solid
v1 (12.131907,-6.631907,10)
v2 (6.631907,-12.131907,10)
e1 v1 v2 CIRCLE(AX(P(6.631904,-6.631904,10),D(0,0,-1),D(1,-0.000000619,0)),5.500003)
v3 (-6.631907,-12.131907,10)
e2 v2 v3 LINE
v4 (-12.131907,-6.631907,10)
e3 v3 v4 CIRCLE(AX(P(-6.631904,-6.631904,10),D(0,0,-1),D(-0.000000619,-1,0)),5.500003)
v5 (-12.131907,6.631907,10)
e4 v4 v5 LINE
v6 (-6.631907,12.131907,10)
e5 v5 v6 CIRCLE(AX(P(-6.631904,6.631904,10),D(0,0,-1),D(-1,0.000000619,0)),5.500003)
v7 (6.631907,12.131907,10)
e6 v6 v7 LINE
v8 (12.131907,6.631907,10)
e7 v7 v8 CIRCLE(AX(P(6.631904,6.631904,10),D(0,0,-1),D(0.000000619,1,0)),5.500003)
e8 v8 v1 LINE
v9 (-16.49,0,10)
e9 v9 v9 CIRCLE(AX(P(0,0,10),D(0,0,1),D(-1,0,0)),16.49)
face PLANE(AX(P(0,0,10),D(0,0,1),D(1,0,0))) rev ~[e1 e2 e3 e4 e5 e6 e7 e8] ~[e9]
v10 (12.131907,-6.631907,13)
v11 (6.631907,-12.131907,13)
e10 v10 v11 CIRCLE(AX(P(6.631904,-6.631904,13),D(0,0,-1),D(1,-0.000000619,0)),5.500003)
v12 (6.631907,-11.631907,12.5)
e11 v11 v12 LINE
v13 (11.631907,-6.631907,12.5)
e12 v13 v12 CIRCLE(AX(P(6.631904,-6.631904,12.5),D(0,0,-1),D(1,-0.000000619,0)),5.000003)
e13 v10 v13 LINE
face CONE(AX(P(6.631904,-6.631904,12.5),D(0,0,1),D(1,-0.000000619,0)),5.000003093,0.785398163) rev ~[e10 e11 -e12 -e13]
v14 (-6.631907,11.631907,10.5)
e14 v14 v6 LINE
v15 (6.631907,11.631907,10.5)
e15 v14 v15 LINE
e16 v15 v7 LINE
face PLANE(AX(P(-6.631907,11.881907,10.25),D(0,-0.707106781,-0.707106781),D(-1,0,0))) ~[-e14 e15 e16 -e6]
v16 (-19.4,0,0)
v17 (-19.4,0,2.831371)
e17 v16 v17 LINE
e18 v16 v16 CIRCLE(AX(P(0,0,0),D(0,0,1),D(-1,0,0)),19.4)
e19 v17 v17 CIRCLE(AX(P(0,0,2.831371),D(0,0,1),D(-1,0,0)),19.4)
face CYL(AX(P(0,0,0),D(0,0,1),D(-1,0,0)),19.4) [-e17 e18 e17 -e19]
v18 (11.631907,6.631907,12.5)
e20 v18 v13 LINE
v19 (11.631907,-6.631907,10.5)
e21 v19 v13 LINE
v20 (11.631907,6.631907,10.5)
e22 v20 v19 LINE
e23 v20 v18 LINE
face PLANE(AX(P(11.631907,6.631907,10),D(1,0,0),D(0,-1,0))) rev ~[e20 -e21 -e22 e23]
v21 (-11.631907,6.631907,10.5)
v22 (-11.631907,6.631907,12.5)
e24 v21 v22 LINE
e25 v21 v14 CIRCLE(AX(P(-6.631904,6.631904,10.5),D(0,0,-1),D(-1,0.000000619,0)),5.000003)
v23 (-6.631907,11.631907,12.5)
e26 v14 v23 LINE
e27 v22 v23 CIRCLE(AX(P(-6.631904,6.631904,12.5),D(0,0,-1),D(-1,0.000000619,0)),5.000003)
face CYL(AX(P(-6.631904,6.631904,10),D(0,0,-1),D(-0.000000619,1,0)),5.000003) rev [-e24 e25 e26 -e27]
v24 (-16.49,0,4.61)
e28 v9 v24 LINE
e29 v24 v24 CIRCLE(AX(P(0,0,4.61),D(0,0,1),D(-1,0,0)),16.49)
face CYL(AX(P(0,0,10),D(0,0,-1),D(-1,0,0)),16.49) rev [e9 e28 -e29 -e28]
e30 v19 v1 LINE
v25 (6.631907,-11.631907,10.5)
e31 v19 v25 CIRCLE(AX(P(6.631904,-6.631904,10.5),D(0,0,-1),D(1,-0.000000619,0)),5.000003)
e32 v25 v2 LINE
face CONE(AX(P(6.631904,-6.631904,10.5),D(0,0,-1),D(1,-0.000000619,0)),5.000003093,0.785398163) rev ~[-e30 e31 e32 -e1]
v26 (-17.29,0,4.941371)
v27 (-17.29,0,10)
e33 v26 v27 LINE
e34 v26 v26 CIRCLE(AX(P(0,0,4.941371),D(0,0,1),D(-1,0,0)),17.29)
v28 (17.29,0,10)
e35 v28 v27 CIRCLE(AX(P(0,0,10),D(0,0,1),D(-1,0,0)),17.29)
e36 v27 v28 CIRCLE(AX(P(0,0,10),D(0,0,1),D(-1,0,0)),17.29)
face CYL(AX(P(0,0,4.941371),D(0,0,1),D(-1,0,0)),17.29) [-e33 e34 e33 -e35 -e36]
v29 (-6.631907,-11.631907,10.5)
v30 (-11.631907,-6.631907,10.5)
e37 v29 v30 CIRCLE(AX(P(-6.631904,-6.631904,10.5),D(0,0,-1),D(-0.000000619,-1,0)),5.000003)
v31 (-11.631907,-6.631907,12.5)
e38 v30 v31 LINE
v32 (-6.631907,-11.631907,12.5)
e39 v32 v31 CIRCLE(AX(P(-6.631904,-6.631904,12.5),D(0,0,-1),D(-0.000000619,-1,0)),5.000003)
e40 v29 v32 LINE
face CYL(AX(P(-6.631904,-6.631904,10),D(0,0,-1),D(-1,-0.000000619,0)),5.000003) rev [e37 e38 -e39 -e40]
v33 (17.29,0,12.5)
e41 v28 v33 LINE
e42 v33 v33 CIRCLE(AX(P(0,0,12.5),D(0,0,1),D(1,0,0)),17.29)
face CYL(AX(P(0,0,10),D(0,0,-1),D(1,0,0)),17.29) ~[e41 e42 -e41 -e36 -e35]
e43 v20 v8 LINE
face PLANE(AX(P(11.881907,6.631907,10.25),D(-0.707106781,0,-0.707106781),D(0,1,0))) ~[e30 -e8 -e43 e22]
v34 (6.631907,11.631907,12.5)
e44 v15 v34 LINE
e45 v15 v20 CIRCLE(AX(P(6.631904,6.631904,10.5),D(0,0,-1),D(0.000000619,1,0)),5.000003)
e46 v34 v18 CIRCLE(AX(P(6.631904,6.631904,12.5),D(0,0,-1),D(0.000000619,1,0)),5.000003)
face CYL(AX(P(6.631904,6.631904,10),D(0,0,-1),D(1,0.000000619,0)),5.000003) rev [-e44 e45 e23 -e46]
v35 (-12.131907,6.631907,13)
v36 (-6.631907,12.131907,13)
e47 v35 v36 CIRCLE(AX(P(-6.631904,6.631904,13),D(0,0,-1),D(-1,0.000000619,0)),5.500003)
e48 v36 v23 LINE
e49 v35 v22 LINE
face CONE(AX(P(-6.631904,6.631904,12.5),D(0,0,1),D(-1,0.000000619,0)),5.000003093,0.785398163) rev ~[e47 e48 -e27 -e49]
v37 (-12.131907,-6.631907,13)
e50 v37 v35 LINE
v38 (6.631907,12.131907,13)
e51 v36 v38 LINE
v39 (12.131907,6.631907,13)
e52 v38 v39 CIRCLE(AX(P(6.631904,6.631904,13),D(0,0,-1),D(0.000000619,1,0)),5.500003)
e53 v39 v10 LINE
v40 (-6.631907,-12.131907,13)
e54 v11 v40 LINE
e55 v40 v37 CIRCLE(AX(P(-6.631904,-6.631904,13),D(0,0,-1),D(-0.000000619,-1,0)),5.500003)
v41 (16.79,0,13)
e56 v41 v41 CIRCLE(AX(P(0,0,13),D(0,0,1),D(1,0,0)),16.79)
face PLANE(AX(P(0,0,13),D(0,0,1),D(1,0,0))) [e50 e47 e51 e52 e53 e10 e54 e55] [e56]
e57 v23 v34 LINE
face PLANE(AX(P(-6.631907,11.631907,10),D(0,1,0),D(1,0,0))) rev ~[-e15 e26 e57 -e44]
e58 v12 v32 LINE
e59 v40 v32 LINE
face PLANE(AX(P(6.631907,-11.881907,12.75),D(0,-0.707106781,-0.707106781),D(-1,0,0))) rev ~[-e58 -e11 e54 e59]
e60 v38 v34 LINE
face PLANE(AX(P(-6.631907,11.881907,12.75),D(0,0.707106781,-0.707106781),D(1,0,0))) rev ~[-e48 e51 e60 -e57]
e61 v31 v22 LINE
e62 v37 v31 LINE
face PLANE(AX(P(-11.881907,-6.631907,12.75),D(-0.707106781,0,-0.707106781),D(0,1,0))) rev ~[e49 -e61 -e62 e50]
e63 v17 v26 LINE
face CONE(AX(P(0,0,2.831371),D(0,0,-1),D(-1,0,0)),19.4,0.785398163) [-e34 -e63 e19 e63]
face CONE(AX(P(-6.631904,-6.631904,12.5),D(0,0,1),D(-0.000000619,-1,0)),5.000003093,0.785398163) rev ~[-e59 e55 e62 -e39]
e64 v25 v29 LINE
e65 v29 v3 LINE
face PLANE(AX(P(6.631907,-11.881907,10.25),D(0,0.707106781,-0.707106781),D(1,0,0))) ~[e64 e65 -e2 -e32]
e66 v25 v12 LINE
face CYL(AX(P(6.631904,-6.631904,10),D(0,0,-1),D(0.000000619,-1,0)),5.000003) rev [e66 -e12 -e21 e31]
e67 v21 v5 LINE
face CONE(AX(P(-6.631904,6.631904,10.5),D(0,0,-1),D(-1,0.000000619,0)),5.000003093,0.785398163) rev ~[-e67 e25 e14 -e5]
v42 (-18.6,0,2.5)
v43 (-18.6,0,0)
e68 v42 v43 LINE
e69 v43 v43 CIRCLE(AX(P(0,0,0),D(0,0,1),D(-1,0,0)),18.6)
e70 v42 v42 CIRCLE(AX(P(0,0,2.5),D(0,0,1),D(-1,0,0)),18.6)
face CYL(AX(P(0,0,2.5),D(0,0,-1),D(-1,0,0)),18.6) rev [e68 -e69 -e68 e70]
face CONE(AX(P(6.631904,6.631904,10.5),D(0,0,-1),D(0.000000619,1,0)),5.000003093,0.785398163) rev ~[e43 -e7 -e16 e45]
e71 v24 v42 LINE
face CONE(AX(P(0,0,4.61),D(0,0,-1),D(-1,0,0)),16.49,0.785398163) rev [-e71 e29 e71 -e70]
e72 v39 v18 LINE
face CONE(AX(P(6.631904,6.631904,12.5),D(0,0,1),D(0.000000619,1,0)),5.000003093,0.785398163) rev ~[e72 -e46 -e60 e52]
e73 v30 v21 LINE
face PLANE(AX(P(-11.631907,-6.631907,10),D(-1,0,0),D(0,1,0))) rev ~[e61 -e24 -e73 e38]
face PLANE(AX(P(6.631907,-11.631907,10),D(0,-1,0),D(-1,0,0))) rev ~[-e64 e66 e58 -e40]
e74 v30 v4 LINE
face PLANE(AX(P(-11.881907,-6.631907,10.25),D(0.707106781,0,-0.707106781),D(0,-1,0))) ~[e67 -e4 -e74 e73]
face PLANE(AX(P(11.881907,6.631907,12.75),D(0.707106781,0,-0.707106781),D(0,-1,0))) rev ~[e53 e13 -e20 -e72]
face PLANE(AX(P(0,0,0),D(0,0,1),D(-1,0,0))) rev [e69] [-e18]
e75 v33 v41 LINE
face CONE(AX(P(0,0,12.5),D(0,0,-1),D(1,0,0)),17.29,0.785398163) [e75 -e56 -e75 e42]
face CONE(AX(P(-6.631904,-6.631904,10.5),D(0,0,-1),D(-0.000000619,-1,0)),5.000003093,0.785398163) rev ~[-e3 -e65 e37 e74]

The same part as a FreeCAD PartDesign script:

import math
import FreeCAD as App
import Part
import Sketcher

V = App.Vector
Q = App.Units.Quantity


def edges_at(feature, points):
    """Names of the edges that pass closest to the given points."""
    edges = feature.Shape.Edges
    near = lambda p: min(range(len(edges)), key=lambda i: edges[i].distToShape(Part.Vertex(*p))[0])
    return sorted({f"Edge{near(p) + 1}" for p in points})

doc = App.newDocument("Part")
body = doc.addObject("PartDesign::Body", "Body")

# Sketch on XZ plane
sketch1 = body.newObject("Sketcher::SketchObject", "Sketch")
sketch1.AttachmentSupport = (doc.getObject("XZ_Plane"), [""])
sketch1.MapMode = "FlatFace"
sketch1.addGeometry([
    Part.LineSegment(V(-19.4, 2.8, 0), V(-19.4, 0, 0)),  # 0
    Part.LineSegment(V(-19.4, 0, 0), V(-18.6, 0, 0)),  # 1
    Part.LineSegment(V(-18.6, 0, 0), V(-18.6, 2.5, 0)),  # 2
    Part.LineSegment(V(-18.6, 2.5, 0), V(-16.5, 4.6, 0)),  # 3
    Part.LineSegment(V(-16.5, 4.6, 0), V(-16.5, 10, 0)),  # 4
    Part.LineSegment(V(-16.5, 10, 0), V(-17.3, 10, 0)),  # 5
    Part.LineSegment(V(-17.3, 10, 0), V(-17.3, 4.9, 0)),  # 6
    Part.LineSegment(V(-17.3, 4.9, 0), V(-19.4, 2.8, 0)),  # 7
], False)
sketch1.addConstraint([
    Sketcher.Constraint("Coincident", 0, 2, 1, 1),
    Sketcher.Constraint("Coincident", 1, 2, 2, 1),
    Sketcher.Constraint("Coincident", 2, 2, 3, 1),
    Sketcher.Constraint("Coincident", 3, 2, 4, 1),
    Sketcher.Constraint("Coincident", 4, 2, 5, 1),
    Sketcher.Constraint("Coincident", 5, 2, 6, 1),
    Sketcher.Constraint("Coincident", 6, 2, 7, 1),
    Sketcher.Constraint("Coincident", 7, 2, 0, 1),
    Sketcher.Constraint("Vertical", 0),
    Sketcher.Constraint("Horizontal", 1),
    Sketcher.Constraint("Vertical", 2),
    Sketcher.Constraint("Vertical", 4),
    Sketcher.Constraint("Horizontal", 5),
    Sketcher.Constraint("Vertical", 6),
    Sketcher.Constraint("PointOnObject", 0, 2, -1),
    Sketcher.Constraint("Parallel", 3, 7),
    Sketcher.Constraint("Equal", 1, 5),
    Sketcher.Constraint("Angle", 3, Q("45 deg")),
    Sketcher.Constraint("DistanceX", 1, 1, 1, 2, 0.8),
    Sketcher.Constraint("DistanceY", 2, 1, 2, 2, 2.5),
    Sketcher.Constraint("DistanceY", -1, 1, 4, 2, 10.0),
    Sketcher.Constraint("DistanceY", 4, 1, 4, 2, 5.39),
    Sketcher.Constraint("DistanceX", 0, 2, -1, 1, 19.4),
    Sketcher.Constraint("DistanceY", 0, 2, 0, 1, 2.831371),
])
revolution = body.newObject("PartDesign::Revolution", "Revolution")
revolution.Profile = sketch1
revolution.ReferenceAxis = (sketch1, ["V_Axis"])
revolution.Angle = 360

# Sketch on XY plane
sketch2 = body.newObject("Sketcher::SketchObject", "Sketch001")
sketch2.AttachmentSupport = (doc.getObject("XY_Plane"), [""])
sketch2.MapMode = "FlatFace"
sketch2.AttachmentOffset = App.Placement(V(0, 0, 10), App.Rotation())
sketch2.addGeometry([
    Part.Circle(V(0, 0, 0), V(0, 0, 1), 17),  # 0
    Part.ArcOfCircle(Part.Circle(V(-7, 7, 0), V(0, 0, 1), 5), math.radians(90), math.radians(180)),  # 1
    Part.LineSegment(V(-7, 12, 0), V(7, 12, 0)),  # 2
    Part.ArcOfCircle(Part.Circle(V(7, 7, 0), V(0, 0, 1), 5), math.radians(0), math.radians(90)),  # 3
    Part.LineSegment(V(12, 7, 0), V(12, -7, 0)),  # 4
    Part.ArcOfCircle(Part.Circle(V(7, -7, 0), V(0, 0, 1), 5), math.radians(-90), math.radians(0)),  # 5
    Part.LineSegment(V(7, -12, 0), V(-7, -12, 0)),  # 6
    Part.ArcOfCircle(Part.Circle(V(-7, -7, 0), V(0, 0, 1), 5), math.radians(-180), math.radians(-90)),  # 7
    Part.LineSegment(V(-12, -7, 0), V(-12, 7, 0)),  # 8
], False)
sketch2.addConstraint([
    Sketcher.Constraint("Tangent", 1, 1, 2, 1),
    Sketcher.Constraint("Tangent", 2, 2, 3, 2),
    Sketcher.Constraint("Tangent", 3, 1, 4, 1),
    Sketcher.Constraint("Tangent", 4, 2, 5, 2),
    Sketcher.Constraint("Tangent", 5, 1, 6, 1),
    Sketcher.Constraint("Tangent", 6, 2, 7, 2),
    Sketcher.Constraint("Tangent", 7, 1, 8, 1),
    Sketcher.Constraint("Tangent", 8, 2, 1, 2),
    Sketcher.Constraint("Horizontal", 2),
    Sketcher.Constraint("Vertical", 4),
    Sketcher.Constraint("Horizontal", 6),
    Sketcher.Constraint("Vertical", 8),
    Sketcher.Constraint("Coincident", 0, 3, -1, 1),
    Sketcher.Constraint("Equal", 1, 3),
    Sketcher.Constraint("Equal", 3, 5),
    Sketcher.Constraint("Equal", 5, 7),
    Sketcher.Constraint("Symmetric", 1, 3, 5, 3, -1, 1),
    Sketcher.Constraint("Equal", 6, 4),
    Sketcher.Constraint("Diameter", 0, 34.58),
    Sketcher.Constraint("DistanceX", 2, 2, 3, 1, 5.0),
    Sketcher.Constraint("DistanceX", 2, 1, 2, 2, 13.263814),
])
pad1 = body.newObject("PartDesign::Pad", "Pad")
pad1.Profile = sketch2
pad1.Length = 3
doc.recompute()

chamfer = body.newObject("PartDesign::Chamfer", "Chamfer")
chamfer.Base = (pad1, edges_at(pad1, [
    (0, -11.632, 10),
    (10.167, -10.167, 10),
    (-10.167, -10.167, 10),
    (-11.632, 0, 10),
    (11.632, 0, 10),
    (10.167, 10.167, 10),
    (0, 11.632, 10),
    (-10.167, 10.167, 10),
    (0, -11.632, 13),
    (10.167, -10.167, 13),
    (11.632, 0, 13),
    (10.167, 10.167, 13),
    (0, 11.632, 13),
    (-10.167, 10.167, 13),
    (-11.632, 0, 13),
    (-10.167, -10.167, 13),
    (-17.29, 0, 13),
    (-17.29, 0, 13),
]))
chamfer.Size = 0.5

doc.recompute()
